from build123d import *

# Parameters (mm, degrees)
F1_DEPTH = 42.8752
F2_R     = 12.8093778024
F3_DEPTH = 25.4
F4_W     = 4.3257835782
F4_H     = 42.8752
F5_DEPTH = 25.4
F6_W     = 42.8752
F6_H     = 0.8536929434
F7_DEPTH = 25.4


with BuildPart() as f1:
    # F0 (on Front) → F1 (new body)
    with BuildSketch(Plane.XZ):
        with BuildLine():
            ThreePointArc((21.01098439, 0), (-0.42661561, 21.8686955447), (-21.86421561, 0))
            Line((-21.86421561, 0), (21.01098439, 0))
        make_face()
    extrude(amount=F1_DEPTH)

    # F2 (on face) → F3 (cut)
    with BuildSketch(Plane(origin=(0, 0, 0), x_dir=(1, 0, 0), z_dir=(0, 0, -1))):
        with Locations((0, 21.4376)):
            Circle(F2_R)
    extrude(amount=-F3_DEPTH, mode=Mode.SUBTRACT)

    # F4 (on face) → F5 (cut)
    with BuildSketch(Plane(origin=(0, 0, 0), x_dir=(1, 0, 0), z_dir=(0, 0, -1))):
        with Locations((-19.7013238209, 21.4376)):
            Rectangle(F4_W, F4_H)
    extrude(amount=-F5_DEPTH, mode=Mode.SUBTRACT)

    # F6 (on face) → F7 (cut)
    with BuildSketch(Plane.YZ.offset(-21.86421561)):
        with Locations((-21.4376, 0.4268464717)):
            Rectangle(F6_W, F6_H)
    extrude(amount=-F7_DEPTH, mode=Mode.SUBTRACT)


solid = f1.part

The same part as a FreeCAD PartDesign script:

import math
import FreeCAD as App
import Part
import Sketcher

V = App.Vector
Q = App.Units.Quantity


def add_polygon(sketch, points):
    """Adds a closed chain of lines whose ends are joined by coincident constraints."""
    first, n = sketch.GeometryCount, len(points)
    for a, b in zip(points, points[1:] + points[:1]):
        sketch.addGeometry(Part.LineSegment(App.Vector(*a, 0), App.Vector(*b, 0)), False)
    for i in range(n):
        sketch.addConstraint(Sketcher.Constraint("Coincident", first + i, 2, first + (i + 1) % n, 1))

doc = App.newDocument("Part")
body = doc.addObject("PartDesign::Body", "Body")
body.AllowCompound = True

sketch1 = body.newObject("Sketcher::SketchObject", "Sketch")
sketch1.AttachmentSupport = (doc.getObject("XZ_Plane"), [""])
sketch1.MapMode = "FlatFace"
sketch1.addGeometry([
    Part.ArcOfCircle(Part.Circle(V(-0.426616, 0.426846, 0), V(0, 0, 1), 21.441849), math.radians(-1.140672), math.radians(181.140672)),
    Part.LineSegment(V(-21.864216, 0, 0), V(21.010984, 0, 0)),
], False)
sketch1.addConstraint([
    Sketcher.Constraint("Coincident", 0, 1, 1, 2),
    Sketcher.Constraint("Coincident", 1, 1, 0, 2),
    Sketcher.Constraint("Horizontal", 1),
    Sketcher.Constraint("PointOnObject", 0, 1, -1),
    Sketcher.Constraint("DistanceX", 1, 1, 1, 2, Q("1.688 in")),
    Sketcher.Constraint("Radius", 0, Q("21.441849 mm")),
    Sketcher.Constraint("DistanceX", 0, 3, -1, 1, Q("0.426616 mm")),
])
pad1 = body.newObject("PartDesign::Pad", "Pad")
pad1.Profile = sketch1
pad1.Length = Q("1.688 in")

sketch2 = body.newObject("Sketcher::SketchObject", "Sketch001")
sketch2.AttachmentSupport = (doc.getObject("XY_Plane"), [""])
sketch2.MapMode = "FlatFace"
sketch2.addGeometry(Part.Circle(V(0, -21.4376, 0), V(0, 0, 1), 12.809378), False)
sketch2.addConstraint([
    Sketcher.Constraint("PointOnObject", 0, 3, -2),
    Sketcher.Constraint("DistanceY", 0, 3, -1, 1, Q("0.844 in")),
    Sketcher.Constraint("Diameter", 0, Q("25.618756 mm")),
])
pocket1 = body.newObject("PartDesign::Pocket", "Pocket")
pocket1.Profile = sketch2
pocket1.Length = Q("1 in")
pocket1.Reversed = True

sketch3 = body.newObject("Sketcher::SketchObject", "Sketch002")
sketch3.AttachmentSupport = (doc.getObject("XY_Plane"), [""])
sketch3.MapMode = "FlatFace"
add_polygon(sketch3, [(-21.864216, -42.8752), (-21.864216, 0), (-17.538432, 0), (-17.538432, -42.8752)])
sketch3.addConstraint([
    Sketcher.Constraint("Vertical", 0),
    Sketcher.Constraint("Horizontal", 1),
    Sketcher.Constraint("Vertical", 2),
    Sketcher.Constraint("Horizontal", 3),
    Sketcher.Constraint("PointOnObject", 0, 2, -1),
    Sketcher.Constraint("DistanceY", 0, 1, 0, 2, Q("1.688 in")),
    Sketcher.Constraint("DistanceX", 1, 1, 1, 2, Q("4.325784 mm")),
    Sketcher.Constraint("DistanceX", 0, 2, -1, 1, Q("21.864216 mm")),
])
pocket2 = body.newObject("PartDesign::Pocket", "Pocket001")
pocket2.Profile = sketch3
pocket2.Length = Q("1 in")
pocket2.Reversed = True

sketch4 = body.newObject("Sketcher::SketchObject", "Sketch003")
sketch4.AttachmentSupport = (doc.getObject("YZ_Plane"), [""])
sketch4.MapMode = "FlatFace"
sketch4.AttachmentOffset = App.Placement(V(0, 0, -21.864216), App.Rotation())
add_polygon(sketch4, [(-42.8752, 0.853693), (-42.8752, 0), (0, 0), (0, 0.853693)])
sketch4.addConstraint([
    Sketcher.Constraint("Vertical", 0),
    Sketcher.Constraint("Horizontal", 1),
    Sketcher.Constraint("Vertical", 2),
    Sketcher.Constraint("Horizontal", 3),
    Sketcher.Constraint("Coincident", 1, 2, -1, 1),
    Sketcher.Constraint("DistanceX", 1, 1, 1, 2, Q("1.688 in")),
    Sketcher.Constraint("DistanceY", 0, 2, 0, 1, Q("0.853693 mm")),
])
pocket3 = body.newObject("PartDesign::Pocket", "Pocket002")
pocket3.Profile = sketch4
pocket3.Length = Q("1 in")

doc.recompute()
